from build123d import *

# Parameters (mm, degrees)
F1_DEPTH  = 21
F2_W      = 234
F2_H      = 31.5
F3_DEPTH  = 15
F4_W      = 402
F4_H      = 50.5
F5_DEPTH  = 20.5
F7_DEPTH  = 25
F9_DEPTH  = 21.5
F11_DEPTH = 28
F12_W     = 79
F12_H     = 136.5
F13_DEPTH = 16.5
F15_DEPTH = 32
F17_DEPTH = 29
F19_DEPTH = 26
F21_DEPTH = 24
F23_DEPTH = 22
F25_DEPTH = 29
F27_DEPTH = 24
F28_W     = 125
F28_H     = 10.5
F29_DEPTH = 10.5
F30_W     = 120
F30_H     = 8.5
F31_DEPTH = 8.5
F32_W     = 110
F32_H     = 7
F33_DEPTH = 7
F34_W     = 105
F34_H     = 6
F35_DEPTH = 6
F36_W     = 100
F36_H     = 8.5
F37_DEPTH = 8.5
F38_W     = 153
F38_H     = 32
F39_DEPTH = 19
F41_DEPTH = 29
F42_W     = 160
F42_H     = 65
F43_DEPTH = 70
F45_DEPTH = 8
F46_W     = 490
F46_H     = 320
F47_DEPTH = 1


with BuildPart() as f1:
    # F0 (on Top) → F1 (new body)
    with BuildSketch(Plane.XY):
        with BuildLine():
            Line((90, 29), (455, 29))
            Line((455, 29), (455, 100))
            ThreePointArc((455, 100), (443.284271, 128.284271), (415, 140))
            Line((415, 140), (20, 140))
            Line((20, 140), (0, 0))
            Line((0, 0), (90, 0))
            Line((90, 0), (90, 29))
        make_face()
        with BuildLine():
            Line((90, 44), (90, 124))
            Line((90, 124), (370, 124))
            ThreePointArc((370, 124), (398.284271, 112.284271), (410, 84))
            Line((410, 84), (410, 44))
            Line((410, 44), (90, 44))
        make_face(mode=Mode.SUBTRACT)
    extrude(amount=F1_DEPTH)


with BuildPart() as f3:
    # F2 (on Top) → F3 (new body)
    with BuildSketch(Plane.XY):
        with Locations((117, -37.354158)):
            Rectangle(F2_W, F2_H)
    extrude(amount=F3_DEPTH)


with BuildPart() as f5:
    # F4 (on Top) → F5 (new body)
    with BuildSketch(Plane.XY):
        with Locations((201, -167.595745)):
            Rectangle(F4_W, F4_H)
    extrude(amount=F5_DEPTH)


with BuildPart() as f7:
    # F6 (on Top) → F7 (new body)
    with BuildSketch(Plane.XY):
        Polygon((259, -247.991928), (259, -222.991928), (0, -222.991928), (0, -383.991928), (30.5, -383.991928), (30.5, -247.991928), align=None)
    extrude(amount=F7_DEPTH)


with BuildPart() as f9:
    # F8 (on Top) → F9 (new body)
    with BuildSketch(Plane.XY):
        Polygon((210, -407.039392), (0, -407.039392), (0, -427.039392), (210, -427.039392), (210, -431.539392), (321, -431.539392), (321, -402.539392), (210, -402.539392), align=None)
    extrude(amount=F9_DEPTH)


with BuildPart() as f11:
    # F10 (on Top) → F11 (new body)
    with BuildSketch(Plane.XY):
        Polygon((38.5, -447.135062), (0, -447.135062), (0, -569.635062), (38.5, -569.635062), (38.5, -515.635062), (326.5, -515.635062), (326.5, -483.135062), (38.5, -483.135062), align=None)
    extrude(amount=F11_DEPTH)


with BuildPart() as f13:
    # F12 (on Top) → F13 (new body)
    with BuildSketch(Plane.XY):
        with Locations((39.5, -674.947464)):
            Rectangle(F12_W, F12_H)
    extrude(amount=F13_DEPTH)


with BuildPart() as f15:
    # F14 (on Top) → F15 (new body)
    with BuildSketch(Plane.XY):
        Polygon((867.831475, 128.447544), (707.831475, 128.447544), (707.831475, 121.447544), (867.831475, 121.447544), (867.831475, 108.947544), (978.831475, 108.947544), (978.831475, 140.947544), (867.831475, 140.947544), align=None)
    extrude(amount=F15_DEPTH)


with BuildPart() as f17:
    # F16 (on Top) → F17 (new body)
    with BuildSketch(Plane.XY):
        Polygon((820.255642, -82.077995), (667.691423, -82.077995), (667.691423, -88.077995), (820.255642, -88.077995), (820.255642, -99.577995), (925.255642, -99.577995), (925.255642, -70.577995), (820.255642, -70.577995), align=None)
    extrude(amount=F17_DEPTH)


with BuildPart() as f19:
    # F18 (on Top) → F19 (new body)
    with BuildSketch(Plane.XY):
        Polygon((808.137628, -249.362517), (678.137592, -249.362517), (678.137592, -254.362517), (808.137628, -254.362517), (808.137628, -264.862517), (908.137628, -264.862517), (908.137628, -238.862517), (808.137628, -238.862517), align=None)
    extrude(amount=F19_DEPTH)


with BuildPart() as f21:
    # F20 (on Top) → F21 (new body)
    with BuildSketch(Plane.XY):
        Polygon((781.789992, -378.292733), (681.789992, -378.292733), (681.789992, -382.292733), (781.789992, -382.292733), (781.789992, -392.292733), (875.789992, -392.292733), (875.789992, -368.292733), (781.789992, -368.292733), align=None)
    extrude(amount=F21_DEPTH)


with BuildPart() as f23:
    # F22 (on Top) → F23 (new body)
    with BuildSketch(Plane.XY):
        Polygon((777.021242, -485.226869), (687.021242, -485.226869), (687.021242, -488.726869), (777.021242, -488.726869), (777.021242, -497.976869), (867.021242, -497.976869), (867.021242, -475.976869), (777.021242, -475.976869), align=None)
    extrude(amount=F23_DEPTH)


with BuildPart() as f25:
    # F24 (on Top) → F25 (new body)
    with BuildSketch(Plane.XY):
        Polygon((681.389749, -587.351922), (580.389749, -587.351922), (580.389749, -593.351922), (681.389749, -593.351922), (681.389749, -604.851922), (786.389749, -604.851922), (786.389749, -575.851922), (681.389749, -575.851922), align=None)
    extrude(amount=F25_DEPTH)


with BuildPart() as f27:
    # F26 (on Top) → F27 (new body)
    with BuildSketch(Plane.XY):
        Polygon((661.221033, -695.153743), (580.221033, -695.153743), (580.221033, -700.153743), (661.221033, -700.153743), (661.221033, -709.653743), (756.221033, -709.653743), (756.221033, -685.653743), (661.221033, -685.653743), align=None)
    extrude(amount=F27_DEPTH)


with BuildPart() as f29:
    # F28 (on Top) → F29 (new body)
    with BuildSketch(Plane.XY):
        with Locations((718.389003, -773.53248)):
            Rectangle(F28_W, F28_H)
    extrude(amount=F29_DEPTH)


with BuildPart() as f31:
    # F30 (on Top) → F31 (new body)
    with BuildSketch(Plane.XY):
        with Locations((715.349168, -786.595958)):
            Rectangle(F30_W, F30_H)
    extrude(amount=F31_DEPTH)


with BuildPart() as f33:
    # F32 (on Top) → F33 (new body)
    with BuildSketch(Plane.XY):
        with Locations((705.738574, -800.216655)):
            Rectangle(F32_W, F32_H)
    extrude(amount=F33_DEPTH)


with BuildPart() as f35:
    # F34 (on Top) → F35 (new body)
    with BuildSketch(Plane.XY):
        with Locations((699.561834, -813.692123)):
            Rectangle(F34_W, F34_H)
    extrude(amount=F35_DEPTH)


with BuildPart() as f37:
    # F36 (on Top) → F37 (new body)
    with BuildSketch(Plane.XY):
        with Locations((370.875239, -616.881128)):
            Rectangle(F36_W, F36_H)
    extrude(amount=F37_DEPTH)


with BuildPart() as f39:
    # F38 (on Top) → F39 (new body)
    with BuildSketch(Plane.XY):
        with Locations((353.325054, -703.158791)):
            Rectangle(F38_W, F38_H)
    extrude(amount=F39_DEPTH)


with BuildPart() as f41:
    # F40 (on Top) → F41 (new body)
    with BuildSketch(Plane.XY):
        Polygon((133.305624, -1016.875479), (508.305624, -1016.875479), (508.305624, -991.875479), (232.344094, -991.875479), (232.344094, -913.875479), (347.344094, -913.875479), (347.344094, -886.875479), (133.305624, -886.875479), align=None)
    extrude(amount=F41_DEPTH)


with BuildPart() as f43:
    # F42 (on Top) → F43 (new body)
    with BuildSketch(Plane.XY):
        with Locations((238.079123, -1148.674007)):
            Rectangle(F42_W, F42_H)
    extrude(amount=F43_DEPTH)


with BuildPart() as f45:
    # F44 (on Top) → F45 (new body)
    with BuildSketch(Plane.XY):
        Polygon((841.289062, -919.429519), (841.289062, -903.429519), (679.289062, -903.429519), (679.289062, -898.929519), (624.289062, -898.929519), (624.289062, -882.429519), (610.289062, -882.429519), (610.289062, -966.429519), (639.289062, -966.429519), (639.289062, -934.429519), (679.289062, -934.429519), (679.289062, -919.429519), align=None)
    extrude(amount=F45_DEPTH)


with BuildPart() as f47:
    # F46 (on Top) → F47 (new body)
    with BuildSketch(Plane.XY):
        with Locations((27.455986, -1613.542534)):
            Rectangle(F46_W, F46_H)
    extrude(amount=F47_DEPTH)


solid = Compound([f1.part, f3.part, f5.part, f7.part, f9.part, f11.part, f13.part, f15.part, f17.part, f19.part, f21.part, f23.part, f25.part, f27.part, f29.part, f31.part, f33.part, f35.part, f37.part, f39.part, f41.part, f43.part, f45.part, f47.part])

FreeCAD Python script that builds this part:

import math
import FreeCAD as App
import Part
import Sketcher
from FreeCAD import Vector
Q = App.Units.Quantity


def add_polygon(sketch, points):
    """Adds a closed chain of lines whose ends are joined by coincident constraints."""
    first, n = sketch.GeometryCount, len(points)
    for a, b in zip(points, points[1:] + points[:1]):
        sketch.addGeometry(Part.LineSegment(App.Vector(*a, 0), App.Vector(*b, 0)), False)
    for i in range(n):
        sketch.addConstraint(Sketcher.Constraint("Coincident", first + i, 2, first + (i + 1) % n, 1))

doc = App.newDocument("Part")
body = doc.addObject("PartDesign::Body", "Body")

# Sketch on XY plane
sketch1 = body.newObject("Sketcher::SketchObject", "Sketch")
sketch1.AttachmentSupport = (doc.getObject("XY_Plane"), [""])
sketch1.MapMode = "FlatFace"
sketch1.addGeometry([
    Part.LineSegment(Vector(90, 29, 0), Vector(455, 29, 0)),  # 0
    Part.LineSegment(Vector(455, 29, 0), Vector(455, 100, 0)),  # 1
    Part.ArcOfCircle(Part.Circle(Vector(415, 100, 0), Vector(0, 0, 1), 40), math.radians(0), math.radians(90)),  # 2
    Part.LineSegment(Vector(415, 140, 0), Vector(20, 140, 0)),  # 3
    Part.LineSegment(Vector(20, 140, 0), Vector(0, 0, 0)),  # 4
    Part.LineSegment(Vector(0, 0, 0), Vector(90, 0, 0)),  # 5
    Part.LineSegment(Vector(90, 0, 0), Vector(90, 29, 0)),  # 6
    Part.LineSegment(Vector(410, 44, 0), Vector(90, 44, 0)),  # 7
    Part.LineSegment(Vector(90, 44, 0), Vector(90, 124, 0)),  # 8
    Part.LineSegment(Vector(90, 124, 0), Vector(370, 124, 0)),  # 9
    Part.ArcOfCircle(Part.Circle(Vector(370, 84, 0), Vector(0, 0, 1), 40), math.radians(0), math.radians(90)),  # 10
    Part.LineSegment(Vector(410, 84, 0), Vector(410, 44, 0)),  # 11
], False)
sketch1.addConstraint([
    Sketcher.Constraint("Coincident", 0, 2, 1, 1),
    Sketcher.Constraint("Tangent", 1, 2, 2, 1),
    Sketcher.Constraint("Tangent", 2, 2, 3, 1),
    Sketcher.Constraint("Coincident", 3, 2, 4, 1),
    Sketcher.Constraint("Coincident", 4, 2, 5, 1),
    Sketcher.Constraint("Coincident", 5, 2, 6, 1),
    Sketcher.Constraint("Coincident", 6, 2, 0, 1),
    Sketcher.Constraint("Coincident", 7, 2, 8, 1),
    Sketcher.Constraint("Coincident", 8, 2, 9, 1),
    Sketcher.Constraint("Tangent", 9, 2, 10, 2),
    Sketcher.Constraint("Tangent", 10, 1, 11, 1),
    Sketcher.Constraint("Coincident", 11, 2, 7, 1),
    Sketcher.Constraint("Horizontal", 0),
    Sketcher.Constraint("Vertical", 1),
    Sketcher.Constraint("Horizontal", 3),
    Sketcher.Constraint("Horizontal", 5),
    Sketcher.Constraint("Vertical", 6),
    Sketcher.Constraint("Horizontal", 7),
    Sketcher.Constraint("Vertical", 8),
    Sketcher.Constraint("Horizontal", 9),
    Sketcher.Constraint("Vertical", 11),
    Sketcher.Constraint("Coincident", 4, 2, -1, 1),
    Sketcher.Constraint("Equal", 2, 10),
    Sketcher.Constraint("Vertical", 6, 2, 7, 2),
    Sketcher.Constraint("Radius", 2, Q("40.000001 mm")),
    Sketcher.Constraint("DistanceX", 0, 1, 0, 2, Q("365 mm")),
    Sketcher.Constraint("DistanceX", 3, 2, 3, 1, Q("395 mm")),
    Sketcher.Constraint("DistanceX", 5, 1, 5, 2, Q("90 mm")),
    Sketcher.Constraint("DistanceX", 7, 2, 7, 1, Q("320 mm")),
    Sketcher.Constraint("DistanceY", 1, 1, 1, 2, Q("71 mm")),
    Sketcher.Constraint("DistanceY", 6, 1, 6, 2, Q("29 mm")),
    Sketcher.Constraint("DistanceY", 8, 1, 8, 2, Q("80 mm")),
    Sketcher.Constraint("DistanceY", -1, 1, 10, 3, Q("83.999999 mm")),
])
pad1 = body.newObject("PartDesign::Pad", "Pad")
pad1.Profile = sketch1
pad1.Length = 21
body2 = doc.addObject("PartDesign::Body", "Body001")

# Sketch on XY plane
sketch2 = body2.newObject("Sketcher::SketchObject", "Sketch001")
sketch2.AttachmentSupport = (doc.getObject("XY_Plane001"), [""])
sketch2.MapMode = "FlatFace"
add_polygon(sketch2, [(0, -22), (0, -53), (234, -53), (234, -22)])  # lines 0-3
sketch2.addConstraint([
    Sketcher.Constraint("Vertical", 0),
    Sketcher.Constraint("Horizontal", 1),
    Sketcher.Constraint("Vertical", 2),
    Sketcher.Constraint("Horizontal", 3),
    Sketcher.Constraint("PointOnObject", 0, 2, -2),
    Sketcher.Constraint("DistanceX", 1, 1, 1, 2, Q("234 mm")),
    Sketcher.Constraint("DistanceY", 0, 2, 0, 1, Q("31.5 mm")),
    Sketcher.Constraint("DistanceY", 2, 2, -1, 1, Q("21.604158 mm")),
])
pad2 = body2.newObject("PartDesign::Pad", "Pad001")
pad2.Profile = sketch2
pad2.Length = 15
body3 = doc.addObject("PartDesign::Body", "Body002")

# Sketch on XY plane
sketch3 = body3.newObject("Sketcher::SketchObject", "Sketch002")
sketch3.AttachmentSupport = (doc.getObject("XY_Plane002"), [""])
sketch3.MapMode = "FlatFace"
add_polygon(sketch3, [(0, -142), (0, -193), (402, -193), (402, -142)])  # lines 0-3
sketch3.addConstraint([
    Sketcher.Constraint("Vertical", 0),
    Sketcher.Constraint("Horizontal", 1),
    Sketcher.Constraint("Vertical", 2),
    Sketcher.Constraint("Horizontal", 3),
    Sketcher.Constraint("PointOnObject", 0, 2, -2),
    Sketcher.Constraint("DistanceX", 1, 1, 1, 2, Q("402 mm")),
    Sketcher.Constraint("DistanceY", 0, 2, 0, 1, Q("50.5 mm")),
    Sketcher.Constraint("DistanceY", 0, 2, -1, 1, Q("192.845745 mm")),
])
pad3 = body3.newObject("PartDesign::Pad", "Pad002")
pad3.Profile = sketch3
pad3.Length = 20.5
body4 = doc.addObject("PartDesign::Body", "Body003")

# Sketch on XY plane
sketch4 = body4.newObject("Sketcher::SketchObject", "Sketch003")
sketch4.AttachmentSupport = (doc.getObject("XY_Plane003"), [""])
sketch4.MapMode = "FlatFace"
add_polygon(sketch4, [(259, -248), (259, -223), (0, -223), (0, -384), (30, -384), (30, -248)])  # lines 0-5
sketch4.addConstraint([
    Sketcher.Constraint("Vertical", 0),
    Sketcher.Constraint("Horizontal", 1),
    Sketcher.Constraint("Vertical", 2),
    Sketcher.Constraint("Horizontal", 3),
    Sketcher.Constraint("Vertical", 4),
    Sketcher.Constraint("Horizontal", 5),
    Sketcher.Constraint("PointOnObject", 1, 2, -2),
    Sketcher.Constraint("DistanceX", 1, 2, 1, 1, Q("259 mm")),
    Sketcher.Constraint("DistanceY", 0, 1, 0, 2, Q("25 mm")),
    Sketcher.Constraint("DistanceY", 2, 2, 2, 1, Q("161 mm")),
    Sketcher.Constraint("DistanceX", 3, 1, 3, 2, Q("30.5 mm")),
    Sketcher.Constraint("DistanceY", 0, 2, -1, 1, Q("222.991928 mm")),
])
pad4 = body4.newObject("PartDesign::Pad", "Pad003")
pad4.Profile = sketch4
pad4.Length = 25
body5 = doc.addObject("PartDesign::Body", "Body004")

# Sketch on XY plane
sketch5 = body5.newObject("Sketcher::SketchObject", "Sketch004")
sketch5.AttachmentSupport = (doc.getObject("XY_Plane004"), [""])
sketch5.MapMode = "FlatFace"
add_polygon(sketch5, [(210, -407), (0, -407), (0, -427), (210, -427), (210, -431.5), (321, -431.5), (321, -402.5), (210, -402.5)])  # lines 0-7
sketch5.addConstraint([
    Sketcher.Constraint("Horizontal", 0),
    Sketcher.Constraint("Vertical", 1),
    Sketcher.Constraint("Horizontal", 2),
    Sketcher.Constraint("Vertical", 3),
    Sketcher.Constraint("Horizontal", 4),
    Sketcher.Constraint("Vertical", 5),
    Sketcher.Constraint("Horizontal", 6),
    Sketcher.Constraint("Vertical", 7),
    Sketcher.Constraint("PointOnObject", 0, 2, -2),
    Sketcher.Constraint("Vertical", 3, 2, 6, 2),
    Sketcher.Constraint("Equal", 3, 7),
    Sketcher.Constraint("DistanceX", 0, 2, 0, 1, Q("210 mm")),
    Sketcher.Constraint("DistanceX", 4, 1, 4, 2, Q("111 mm")),
    Sketcher.Constraint("DistanceY", 1, 2, 1, 1, Q("20 mm")),
    Sketcher.Constraint("DistanceY", 5, 1, 5, 2, Q("29 mm")),
    Sketcher.Constraint("DistanceY", 0, 2, -1, 1, Q("407.039392 mm")),
])
pad5 = body5.newObject("PartDesign::Pad", "Pad004")
pad5.Profile = sketch5
pad5.Length = 21.5
body6 = doc.addObject("PartDesign::Body", "Body005")

# Sketch on XY plane
sketch6 = body6.newObject("Sketcher::SketchObject", "Sketch005")
sketch6.AttachmentSupport = (doc.getObject("XY_Plane005"), [""])
sketch6.MapMode = "FlatFace"
add_polygon(sketch6, [(38, -447), (0, -447), (0, -570), (38, -570), (38, -516), (326, -516), (326, -483), (38, -483)])  # lines 0-7
sketch6.addConstraint([
    Sketcher.Constraint("Horizontal", 0),
    Sketcher.Constraint("Vertical", 1),
    Sketcher.Constraint("Horizontal", 2),
    Sketcher.Constraint("Vertical", 3),
    Sketcher.Constraint("Horizontal", 4),
    Sketcher.Constraint("Vertical", 5),
    Sketcher.Constraint("Horizontal", 6),
    Sketcher.Constraint("Vertical", 7),
    Sketcher.Constraint("PointOnObject", 0, 2, -2),
    Sketcher.Constraint("Vertical", 3, 2, 6, 2),
    Sketcher.Constraint("DistanceX", 4, 1, 4, 2, Q("288 mm")),
    Sketcher.Constraint("DistanceY", 3, 1, 3, 2, Q("54 mm")),
    Sketcher.Constraint("DistanceY", 7, 1, 7, 2, Q("36 mm")),
    Sketcher.Constraint("DistanceX", 0, 2, 0, 1, Q("38.5 mm")),
    Sketcher.Constraint("DistanceY", 1, 2, 1, 1, Q("122.5 mm")),
    Sketcher.Constraint("DistanceY", 0, 2, -1, 1, Q("447.135062 mm")),
])
pad6 = body6.newObject("PartDesign::Pad", "Pad005")
pad6.Profile = sketch6
pad6.Length = 28
body7 = doc.addObject("PartDesign::Body", "Body006")

# Sketch on XY plane
sketch7 = body7.newObject("Sketcher::SketchObject", "Sketch006")
sketch7.AttachmentSupport = (doc.getObject("XY_Plane006"), [""])
sketch7.MapMode = "FlatFace"
add_polygon(sketch7, [(0, -607), (0, -743), (79, -743), (79, -607)])  # lines 0-3
sketch7.addConstraint([
    Sketcher.Constraint("Vertical", 0),
    Sketcher.Constraint("Horizontal", 1),
    Sketcher.Constraint("Vertical", 2),
    Sketcher.Constraint("Horizontal", 3),
    Sketcher.Constraint("PointOnObject", 0, 2, -2),
    Sketcher.Constraint("DistanceX", 1, 1, 1, 2, Q("79 mm")),
    Sketcher.Constraint("DistanceY", 0, 2, 0, 1, Q("136.5 mm")),
    Sketcher.Constraint("DistanceY", 0, 2, -1, 1, Q("743.197464 mm")),
])
pad7 = body7.newObject("PartDesign::Pad", "Pad006")
pad7.Profile = sketch7
pad7.Length = 16.5
body8 = doc.addObject("PartDesign::Body", "Body007")

# Sketch on XY plane
sketch8 = body8.newObject("Sketcher::SketchObject", "Sketch007")
sketch8.AttachmentSupport = (doc.getObject("XY_Plane007"), [""])
sketch8.MapMode = "FlatFace"
add_polygon(sketch8, [(868, 128), (708, 128), (708, 121), (868, 121), (868, 109), (979, 109), (979, 141), (868, 141)])  # lines 0-7
sketch8.addConstraint([
    Sketcher.Constraint("Horizontal", 0),
    Sketcher.Constraint("Vertical", 1),
    Sketcher.Constraint("Horizontal", 2),
    Sketcher.Constraint("Vertical", 3),
    Sketcher.Constraint("Horizontal", 4),
    Sketcher.Constraint("Vertical", 5),
    Sketcher.Constraint("Horizontal", 6),
    Sketcher.Constraint("Vertical", 7),
    Sketcher.Constraint("Vertical", 3, 2, 6, 2),
    Sketcher.Constraint("Equal", 3, 7),
    Sketcher.Constraint("DistanceX", 0, 2, 0, 1, Q("160 mm")),
    Sketcher.Constraint("DistanceX", 4, 1, 4, 2, Q("111 mm")),
    Sketcher.Constraint("DistanceY", 1, 2, 1, 1, Q("7 mm")),
    Sketcher.Constraint("DistanceY", 5, 1, 5, 2, Q("32 mm")),
    Sketcher.Constraint("DistanceX", -1, 1, 0, 2, Q("707.831475 mm")),
    Sketcher.Constraint("DistanceY", -1, 1, 0, 2, Q("128.447544 mm")),
])
pad8 = body8.newObject("PartDesign::Pad", "Pad007")
pad8.Profile = sketch8
pad8.Length = 32
body9 = doc.addObject("PartDesign::Body", "Body008")

# Sketch on XY plane
sketch9 = body9.newObject("Sketcher::SketchObject", "Sketch008")
sketch9.AttachmentSupport = (doc.getObject("XY_Plane008"), [""])
sketch9.MapMode = "FlatFace"
add_polygon(sketch9, [(820, -82), (668, -82), (668, -88), (820, -88), (820, -100), (925, -100), (925, -71), (820, -71)])  # lines 0-7
sketch9.addConstraint([
    Sketcher.Constraint("Horizontal", 0),
    Sketcher.Constraint("Vertical", 1),
    Sketcher.Constraint("Horizontal", 2),
    Sketcher.Constraint("Vertical", 3),
    Sketcher.Constraint("Horizontal", 4),
    Sketcher.Constraint("Vertical", 5),
    Sketcher.Constraint("Horizontal", 6),
    Sketcher.Constraint("Vertical", 7),
    Sketcher.Constraint("Vertical", 3, 2, 6, 2),
    Sketcher.Constraint("Equal", 3, 7),
    Sketcher.Constraint("DistanceX", 4, 1, 4, 2, Q("105 mm")),
    Sketcher.Constraint("DistanceY", 1, 2, 1, 1, Q("6 mm")),
    Sketcher.Constraint("DistanceY", 5, 1, 5, 2, Q("29 mm")),
    Sketcher.Constraint("DistanceX", 0, 2, 0, 1, Q("152.564219 mm")),
    Sketcher.Constraint("DistanceX", -1, 1, 2, 2, Q("820.255642 mm")),
    Sketcher.Constraint("DistanceY", 0, 2, -1, 1, Q("82.077995 mm")),
])
pad9 = body9.newObject("PartDesign::Pad", "Pad008")
pad9.Profile = sketch9
pad9.Length = 29
body10 = doc.addObject("PartDesign::Body", "Body009")

# Sketch on XY plane
sketch10 = body10.newObject("Sketcher::SketchObject", "Sketch009")
sketch10.AttachmentSupport = (doc.getObject("XY_Plane009"), [""])
sketch10.MapMode = "FlatFace"
add_polygon(sketch10, [(808, -249), (678, -249), (678, -254), (808, -254), (808, -265), (908, -265), (908, -239), (808, -239)])  # lines 0-7
sketch10.addConstraint([
    Sketcher.Constraint("Horizontal", 0),
    Sketcher.Constraint("Vertical", 1),
    Sketcher.Constraint("Horizontal", 2),
    Sketcher.Constraint("Vertical", 3),
    Sketcher.Constraint("Horizontal", 4),
    Sketcher.Constraint("Vertical", 5),
    Sketcher.Constraint("Horizontal", 6),
    Sketcher.Constraint("Vertical", 7),
    Sketcher.Constraint("Vertical", 3, 2, 6, 2),
    Sketcher.Constraint("Equal", 3, 7),
    Sketcher.Constraint("DistanceX", 4, 1, 4, 2, Q("100 mm")),
    Sketcher.Constraint("DistanceY", 1, 2, 1, 1, Q("5 mm")),
    Sketcher.Constraint("DistanceY", 5, 1, 5, 2, Q("26 mm")),
    Sketcher.Constraint("DistanceX", 0, 2, 0, 1, Q("130.000036 mm")),
    Sketcher.Constraint("DistanceX", -1, 1, 0, 2, Q("678.137592 mm")),
    Sketcher.Constraint("DistanceY", 0, 2, -1, 1, Q("249.362517 mm")),
])
pad10 = body10.newObject("PartDesign::Pad", "Pad009")
pad10.Profile = sketch10
pad10.Length = 26
body11 = doc.addObject("PartDesign::Body", "Body010")

# Sketch on XY plane
sketch11 = body11.newObject("Sketcher::SketchObject", "Sketch010")
sketch11.AttachmentSupport = (doc.getObject("XY_Plane010"), [""])
sketch11.MapMode = "FlatFace"
add_polygon(sketch11, [(781.8, -378.3), (681.8, -378.3), (681.8, -382.3), (781.8, -382.3), (781.8, -392.3), (875.8, -392.3), (875.8, -368.3), (781.8, -368.3)])  # lines 0-7
sketch11.addConstraint([
    Sketcher.Constraint("Horizontal", 0),
    Sketcher.Constraint("Vertical", 1),
    Sketcher.Constraint("Horizontal", 2),
    Sketcher.Constraint("Vertical", 3),
    Sketcher.Constraint("Horizontal", 4),
    Sketcher.Constraint("Vertical", 5),
    Sketcher.Constraint("Horizontal", 6),
    Sketcher.Constraint("Vertical", 7),
    Sketcher.Constraint("Vertical", 3, 2, 6, 2),
    Sketcher.Constraint("Equal", 3, 7),
    Sketcher.Constraint("DistanceX", 0, 2, 0, 1, Q("100 mm")),
    Sketcher.Constraint("DistanceX", 4, 1, 4, 2, Q("94 mm")),
    Sketcher.Constraint("DistanceY", 1, 2, 1, 1, Q("4 mm")),
    Sketcher.Constraint("DistanceY", 3, 2, 3, 1, Q("10 mm")),
    Sketcher.Constraint("DistanceX", -1, 1, 0, 2, Q("681.789992 mm")),
    Sketcher.Constraint("DistanceY", 0, 2, -1, 1, Q("378.292733 mm")),
])
pad11 = body11.newObject("PartDesign::Pad", "Pad010")
pad11.Profile = sketch11
pad11.Length = 24
body12 = doc.addObject("PartDesign::Body", "Body011")

# Sketch on XY plane
sketch12 = body12.newObject("Sketcher::SketchObject", "Sketch011")
sketch12.AttachmentSupport = (doc.getObject("XY_Plane011"), [""])
sketch12.MapMode = "FlatFace"
add_polygon(sketch12, [(777, -485.2), (687, -485.2), (687, -488.7), (777, -488.7), (777, -498), (867, -498), (867, -476), (777, -476)])  # lines 0-7
sketch12.addConstraint([
    Sketcher.Constraint("Horizontal", 0),
    Sketcher.Constraint("Vertical", 1),
    Sketcher.Constraint("Horizontal", 2),
    Sketcher.Constraint("Vertical", 3),
    Sketcher.Constraint("Horizontal", 4),
    Sketcher.Constraint("Vertical", 5),
    Sketcher.Constraint("Horizontal", 6),
    Sketcher.Constraint("Vertical", 7),
    Sketcher.Constraint("Vertical", 3, 2, 6, 2),
    Sketcher.Constraint("Equal", 2, 4),
    Sketcher.Constraint("Equal", 3, 7),
    Sketcher.Constraint("DistanceX", 0, 2, 0, 1, Q("90 mm")),
    Sketcher.Constraint("DistanceY", 5, 1, 5, 2, Q("22 mm")),
    Sketcher.Constraint("DistanceY", 1, 2, 1, 1, Q("3.5 mm")),
    Sketcher.Constraint("DistanceX", -1, 1, 0, 2, Q("687.021242 mm")),
    Sketcher.Constraint("DistanceY", 0, 2, -1, 1, Q("485.226869 mm")),
])
pad12 = body12.newObject("PartDesign::Pad", "Pad011")
pad12.Profile = sketch12
pad12.Length = 22
body13 = doc.addObject("PartDesign::Body", "Body012")

# Sketch on XY plane
sketch13 = body13.newObject("Sketcher::SketchObject", "Sketch012")
sketch13.AttachmentSupport = (doc.getObject("XY_Plane012"), [""])
sketch13.MapMode = "FlatFace"
add_polygon(sketch13, [(681, -587), (580, -587), (580, -593), (681, -593), (681, -605), (786, -605), (786, -576), (681, -576)])  # lines 0-7
sketch13.addConstraint([
    Sketcher.Constraint("Horizontal", 0),
    Sketcher.Constraint("Vertical", 1),
    Sketcher.Constraint("Horizontal", 2),
    Sketcher.Constraint("Vertical", 3),
    Sketcher.Constraint("Horizontal", 4),
    Sketcher.Constraint("Vertical", 5),
    Sketcher.Constraint("Horizontal", 6),
    Sketcher.Constraint("Vertical", 7),
    Sketcher.Constraint("Vertical", 3, 2, 6, 2),
    Sketcher.Constraint("Equal", 3, 7),
    Sketcher.Constraint("DistanceX", 0, 2, 0, 1, Q("101 mm")),
    Sketcher.Constraint("DistanceX", 4, 1, 4, 2, Q("105 mm")),
    Sketcher.Constraint("DistanceY", 1, 2, 1, 1, Q("6 mm")),
    Sketcher.Constraint("DistanceY", 5, 1, 5, 2, Q("29 mm")),
    Sketcher.Constraint("DistanceX", -1, 1, 0, 2, Q("580.389749 mm")),
    Sketcher.Constraint("DistanceY", 0, 2, -1, 1, Q("587.351922 mm")),
])
pad13 = body13.newObject("PartDesign::Pad", "Pad012")
pad13.Profile = sketch13
pad13.Length = 29
body14 = doc.addObject("PartDesign::Body", "Body013")

# Sketch on XY plane
sketch14 = body14.newObject("Sketcher::SketchObject", "Sketch013")
sketch14.AttachmentSupport = (doc.getObject("XY_Plane013"), [""])
sketch14.MapMode = "FlatFace"
add_polygon(sketch14, [(661, -695), (580, -695), (580, -700), (661, -700), (661, -710), (756, -710), (756, -686), (661, -686)])  # lines 0-7
sketch14.addConstraint([
    Sketcher.Constraint("Horizontal", 0),
    Sketcher.Constraint("Vertical", 1),
    Sketcher.Constraint("Horizontal", 2),
    Sketcher.Constraint("Vertical", 3),
    Sketcher.Constraint("Horizontal", 4),
    Sketcher.Constraint("Vertical", 5),
    Sketcher.Constraint("Horizontal", 6),
    Sketcher.Constraint("Vertical", 7),
    Sketcher.Constraint("Vertical", 3, 2, 6, 2),
    Sketcher.Constraint("Equal", 3, 7),
    Sketcher.Constraint("DistanceX", 0, 2, 0, 1, Q("81 mm")),
    Sketcher.Constraint("DistanceX", 4, 1, 4, 2, Q("95 mm")),
    Sketcher.Constraint("DistanceY", 1, 2, 1, 1, Q("5 mm")),
    Sketcher.Constraint("DistanceY", 5, 1, 5, 2, Q("24 mm")),
    Sketcher.Constraint("DistanceX", -1, 1, 0, 2, Q("580.221033 mm")),
    Sketcher.Constraint("DistanceY", 0, 2, -1, 1, Q("695.153743 mm")),
])
pad14 = body14.newObject("PartDesign::Pad", "Pad013")
pad14.Profile = sketch14
pad14.Length = 24
body15 = doc.addObject("PartDesign::Body", "Body014")

# Sketch on XY plane
sketch15 = body15.newObject("Sketcher::SketchObject", "Sketch014")
sketch15.AttachmentSupport = (doc.getObject("XY_Plane014"), [""])
sketch15.MapMode = "FlatFace"
add_polygon(sketch15, [(656, -768), (656, -779), (781, -779), (781, -768)])  # lines 0-3
sketch15.addConstraint([
    Sketcher.Constraint("Vertical", 0),
    Sketcher.Constraint("Horizontal", 1),
    Sketcher.Constraint("Vertical", 2),
    Sketcher.Constraint("Horizontal", 3),
    Sketcher.Constraint("DistanceX", 1, 1, 1, 2, Q("125 mm")),
    Sketcher.Constraint("DistanceY", 0, 2, 0, 1, Q("10.5 mm")),
    Sketcher.Constraint("DistanceY", 0, 2, -1, 1, Q("778.78248 mm")),
    Sketcher.Constraint("DistanceX", -1, 1, 0, 2, Q("655.889003 mm")),
])
pad15 = body15.newObject("PartDesign::Pad", "Pad014")
pad15.Profile = sketch15
pad15.Length = 10.5
body16 = doc.addObject("PartDesign::Body", "Body015")

# Sketch on XY plane
sketch16 = body16.newObject("Sketcher::SketchObject", "Sketch015")
sketch16.AttachmentSupport = (doc.getObject("XY_Plane015"), [""])
sketch16.MapMode = "FlatFace"
add_polygon(sketch16, [(655, -782), (655, -791), (775, -791), (775, -782)])  # lines 0-3
sketch16.addConstraint([
    Sketcher.Constraint("Vertical", 0),
    Sketcher.Constraint("Horizontal", 1),
    Sketcher.Constraint("Vertical", 2),
    Sketcher.Constraint("Horizontal", 3),
    Sketcher.Constraint("DistanceX", 1, 1, 1, 2, Q("120 mm")),
    Sketcher.Constraint("DistanceY", 0, 2, 0, 1, Q("8.5 mm")),
    Sketcher.Constraint("DistanceX", -1, 1, 0, 2, Q("655.349168 mm")),
    Sketcher.Constraint("DistanceY", 0, 2, -1, 1, Q("790.845958 mm")),
])
pad16 = body16.newObject("PartDesign::Pad", "Pad015")
pad16.Profile = sketch16
pad16.Length = 8.5
body17 = doc.addObject("PartDesign::Body", "Body016")

# Sketch on XY plane
sketch17 = body17.newObject("Sketcher::SketchObject", "Sketch016")
sketch17.AttachmentSupport = (doc.getObject("XY_Plane016"), [""])
sketch17.MapMode = "FlatFace"
add_polygon(sketch17, [(651, -797), (651, -804), (761, -804), (761, -797)])  # lines 0-3
sketch17.addConstraint([
    Sketcher.Constraint("Vertical", 0),
    Sketcher.Constraint("Horizontal", 1),
    Sketcher.Constraint("Vertical", 2),
    Sketcher.Constraint("Horizontal", 3),
    Sketcher.Constraint("DistanceX", 1, 1, 1, 2, Q("110 mm")),
    Sketcher.Constraint("DistanceY", 0, 2, 0, 1, Q("7 mm")),
    Sketcher.Constraint("DistanceX", -1, 1, 0, 2, Q("650.738574 mm")),
    Sketcher.Constraint("DistanceY", 0, 2, -1, 1, Q("803.716655 mm")),
])
pad17 = body17.newObject("PartDesign::Pad", "Pad016")
pad17.Profile = sketch17
pad17.Length = 7
body18 = doc.addObject("PartDesign::Body", "Body017")

# Sketch on XY plane
sketch18 = body18.newObject("Sketcher::SketchObject", "Sketch017")
sketch18.AttachmentSupport = (doc.getObject("XY_Plane017"), [""])
sketch18.MapMode = "FlatFace"
add_polygon(sketch18, [(647, -811), (647, -817), (752, -817), (752, -811)])  # lines 0-3
sketch18.addConstraint([
    Sketcher.Constraint("Vertical", 0),
    Sketcher.Constraint("Horizontal", 1),
    Sketcher.Constraint("Vertical", 2),
    Sketcher.Constraint("Horizontal", 3),
    Sketcher.Constraint("DistanceX", 1, 1, 1, 2, Q("105 mm")),
    Sketcher.Constraint("DistanceY", 0, 2, 0, 1, Q("6 mm")),
    Sketcher.Constraint("DistanceX", -1, 1, 0, 2, Q("647.061834 mm")),
    Sketcher.Constraint("DistanceY", 0, 2, -1, 1, Q("816.692123 mm")),
])
pad18 = body18.newObject("PartDesign::Pad", "Pad017")
pad18.Profile = sketch18
pad18.Length = 6
body19 = doc.addObject("PartDesign::Body", "Body018")

# Sketch on XY plane
sketch19 = body19.newObject("Sketcher::SketchObject", "Sketch018")
sketch19.AttachmentSupport = (doc.getObject("XY_Plane018"), [""])
sketch19.MapMode = "FlatFace"
add_polygon(sketch19, [(321, -613), (321, -621), (421, -621), (421, -613)])  # lines 0-3
sketch19.addConstraint([
    Sketcher.Constraint("Vertical", 0),
    Sketcher.Constraint("Horizontal", 1),
    Sketcher.Constraint("Vertical", 2),
    Sketcher.Constraint("Horizontal", 3),
    Sketcher.Constraint("DistanceX", 1, 1, 1, 2, Q("100 mm")),
    Sketcher.Constraint("DistanceY", 0, 2, 0, 1, Q("8.5 mm")),
    Sketcher.Constraint("DistanceX", -1, 1, 0, 2, Q("320.875239 mm")),
    Sketcher.Constraint("DistanceY", 0, 2, -1, 1, Q("621.131128 mm")),
])
pad19 = body19.newObject("PartDesign::Pad", "Pad018")
pad19.Profile = sketch19
pad19.Length = 8.5
body20 = doc.addObject("PartDesign::Body", "Body019")

# Sketch on XY plane
sketch20 = body20.newObject("Sketcher::SketchObject", "Sketch019")
sketch20.AttachmentSupport = (doc.getObject("XY_Plane019"), [""])
sketch20.MapMode = "FlatFace"
add_polygon(sketch20, [(277, -687), (277, -719), (430, -719), (430, -687)])  # lines 0-3
sketch20.addConstraint([
    Sketcher.Constraint("Vertical", 0),
    Sketcher.Constraint("Horizontal", 1),
    Sketcher.Constraint("Vertical", 2),
    Sketcher.Constraint("Horizontal", 3),
    Sketcher.Constraint("DistanceX", 1, 1, 1, 2, Q("153 mm")),
    Sketcher.Constraint("DistanceY", 0, 2, 0, 1, Q("32 mm")),
    Sketcher.Constraint("DistanceY", 0, 2, -1, 1, Q("719.158791 mm")),
    Sketcher.Constraint("DistanceX", -1, 1, 0, 2, Q("276.825054 mm")),
])
pad20 = body20.newObject("PartDesign::Pad", "Pad019")
pad20.Profile = sketch20
pad20.Length = 19
body21 = doc.addObject("PartDesign::Body", "Body020")

# Sketch on XY plane
sketch21 = body21.newObject("Sketcher::SketchObject", "Sketch020")
sketch21.AttachmentSupport = (doc.getObject("XY_Plane020"), [""])
sketch21.MapMode = "FlatFace"
add_polygon(sketch21, [(133, -1017), (508, -1017), (508, -992), (232, -992), (232, -914), (347, -914), (347, -887), (133, -887)])  # lines 0-7
sketch21.addConstraint([
    Sketcher.Constraint("Horizontal", 0),
    Sketcher.Constraint("Vertical", 1),
    Sketcher.Constraint("Horizontal", 2),
    Sketcher.Constraint("Vertical", 3),
    Sketcher.Constraint("Horizontal", 4),
    Sketcher.Constraint("Vertical", 5),
    Sketcher.Constraint("Horizontal", 6),
    Sketcher.Constraint("Vertical", 7),
    Sketcher.Constraint("DistanceX", 0, 1, 0, 2, Q("375 mm")),
    Sketcher.Constraint("DistanceX", 4, 1, 4, 2, Q("115 mm")),
    Sketcher.Constraint("DistanceY", 1, 1, 1, 2, Q("25 mm")),
    Sketcher.Constraint("DistanceY", 3, 1, 3, 2, Q("78 mm")),
    Sketcher.Constraint("DistanceY", 5, 1, 5, 2, Q("27 mm")),
    Sketcher.Constraint("DistanceX", 2, 2, 2, 1, Q("275.96153 mm")),
    Sketcher.Constraint("DistanceY", 0, 2, -1, 1, Q("1016.875479 mm")),
    Sketcher.Constraint("DistanceX", -1, 1, 0, 2, Q("508.305624 mm")),
])
pad21 = body21.newObject("PartDesign::Pad", "Pad020")
pad21.Profile = sketch21
pad21.Length = 29
body22 = doc.addObject("PartDesign::Body", "Body021")

# Sketch on XY plane
sketch22 = body22.newObject("Sketcher::SketchObject", "Sketch021")
sketch22.AttachmentSupport = (doc.getObject("XY_Plane021"), [""])
sketch22.MapMode = "FlatFace"
add_polygon(sketch22, [(158, -1116), (158, -1181), (318, -1181), (318, -1116)])  # lines 0-3
sketch22.addConstraint([
    Sketcher.Constraint("Vertical", 0),
    Sketcher.Constraint("Horizontal", 1),
    Sketcher.Constraint("Vertical", 2),
    Sketcher.Constraint("Horizontal", 3),
    Sketcher.Constraint("DistanceX", 1, 1, 1, 2, Q("160 mm")),
    Sketcher.Constraint("DistanceY", 0, 2, 0, 1, Q("65 mm")),
    Sketcher.Constraint("DistanceX", -1, 1, 0, 2, Q("158.079123 mm")),
    Sketcher.Constraint("DistanceY", 0, 2, -1, 1, Q("1181.174007 mm")),
])
pad22 = body22.newObject("PartDesign::Pad", "Pad021")
pad22.Profile = sketch22
pad22.Length = 70
body23 = doc.addObject("PartDesign::Body", "Body022")

# Sketch on XY plane
sketch23 = body23.newObject("Sketcher::SketchObject", "Sketch022")
sketch23.AttachmentSupport = (doc.getObject("XY_Plane022"), [""])
sketch23.MapMode = "FlatFace"
add_polygon(sketch23, [(841.3, -919.4), (841.3, -903.4), (679.3, -903.4), (679.3, -898.9), (624.3, -898.9), (624.3, -882.4), (610.3, -882.4), (610.3, -966.4), (639.3, -966.4), (639.3, -934.4), (679.3, -934.4), (679.3, -919.4)])  # lines 0-11
sketch23.addConstraint([
    Sketcher.Constraint("Vertical", 0),
    Sketcher.Constraint("Horizontal", 1),
    Sketcher.Constraint("Vertical", 2),
    Sketcher.Constraint("Horizontal", 3),
    Sketcher.Constraint("Vertical", 4),
    Sketcher.Constraint("Horizontal", 5),
    Sketcher.Constraint("Vertical", 6),
    Sketcher.Constraint("Horizontal", 7),
    Sketcher.Constraint("Vertical", 8),
    Sketcher.Constraint("Horizontal", 9),
    Sketcher.Constraint("Vertical", 10),
    Sketcher.Constraint("Horizontal", 11),
    Sketcher.Constraint("Vertical", 2, 2, 9, 2),
    Sketcher.Constraint("DistanceX", 1, 2, 1, 1, Q("162 mm")),
    Sketcher.Constraint("DistanceX", 3, 2, 3, 1, Q("55 mm")),
    Sketcher.Constraint("DistanceX", 5, 2, 5, 1, Q("14 mm")),
    Sketcher.Constraint("DistanceX", 7, 1, 7, 2, Q("29 mm")),
    Sketcher.Constraint("DistanceY", 0, 1, 0, 2, Q("16 mm")),
    Sketcher.Constraint("DistanceY", 6, 2, 6, 1, Q("84 mm")),
    Sketcher.Constraint("DistanceY", 8, 1, 8, 2, Q("32 mm")),
    Sketcher.Constraint("DistanceY", 10, 1, 10, 2, Q("15 mm")),
    Sketcher.Constraint("DistanceY", 2, 1, 2, 2, Q("4.5 mm")),
    Sketcher.Constraint("DistanceX", -1, 1, 0, 2, Q("841.289062 mm")),
    Sketcher.Constraint("DistanceY", 0, 2, -1, 1, Q("903.429519 mm")),
])
pad23 = body23.newObject("PartDesign::Pad", "Pad022")
pad23.Profile = sketch23
pad23.Length = 8
body24 = doc.addObject("PartDesign::Body", "Body023")

# Sketch on XY plane
sketch24 = body24.newObject("Sketcher::SketchObject", "Sketch023")
sketch24.AttachmentSupport = (doc.getObject("XY_Plane023"), [""])
sketch24.MapMode = "FlatFace"
add_polygon(sketch24, [(-218, -1454), (-218, -1774), (272, -1774), (272, -1454)])  # lines 0-3
sketch24.addConstraint([
    Sketcher.Constraint("Vertical", 0),
    Sketcher.Constraint("Horizontal", 1),
    Sketcher.Constraint("Vertical", 2),
    Sketcher.Constraint("Horizontal", 3),
    Sketcher.Constraint("DistanceX", 1, 1, 1, 2, Q("490 mm")),
    Sketcher.Constraint("DistanceY", 0, 2, 0, 1, Q("320 mm")),
    Sketcher.Constraint("DistanceX", 0, 2, -1, 1, Q("217.544014 mm")),
    Sketcher.Constraint("DistanceY", 0, 2, -1, 1, Q("1773.542534 mm")),
])
pad24 = body24.newObject("PartDesign::Pad", "Pad023")
pad24.Profile = sketch24
pad24.Length = 1

doc.recompute()
